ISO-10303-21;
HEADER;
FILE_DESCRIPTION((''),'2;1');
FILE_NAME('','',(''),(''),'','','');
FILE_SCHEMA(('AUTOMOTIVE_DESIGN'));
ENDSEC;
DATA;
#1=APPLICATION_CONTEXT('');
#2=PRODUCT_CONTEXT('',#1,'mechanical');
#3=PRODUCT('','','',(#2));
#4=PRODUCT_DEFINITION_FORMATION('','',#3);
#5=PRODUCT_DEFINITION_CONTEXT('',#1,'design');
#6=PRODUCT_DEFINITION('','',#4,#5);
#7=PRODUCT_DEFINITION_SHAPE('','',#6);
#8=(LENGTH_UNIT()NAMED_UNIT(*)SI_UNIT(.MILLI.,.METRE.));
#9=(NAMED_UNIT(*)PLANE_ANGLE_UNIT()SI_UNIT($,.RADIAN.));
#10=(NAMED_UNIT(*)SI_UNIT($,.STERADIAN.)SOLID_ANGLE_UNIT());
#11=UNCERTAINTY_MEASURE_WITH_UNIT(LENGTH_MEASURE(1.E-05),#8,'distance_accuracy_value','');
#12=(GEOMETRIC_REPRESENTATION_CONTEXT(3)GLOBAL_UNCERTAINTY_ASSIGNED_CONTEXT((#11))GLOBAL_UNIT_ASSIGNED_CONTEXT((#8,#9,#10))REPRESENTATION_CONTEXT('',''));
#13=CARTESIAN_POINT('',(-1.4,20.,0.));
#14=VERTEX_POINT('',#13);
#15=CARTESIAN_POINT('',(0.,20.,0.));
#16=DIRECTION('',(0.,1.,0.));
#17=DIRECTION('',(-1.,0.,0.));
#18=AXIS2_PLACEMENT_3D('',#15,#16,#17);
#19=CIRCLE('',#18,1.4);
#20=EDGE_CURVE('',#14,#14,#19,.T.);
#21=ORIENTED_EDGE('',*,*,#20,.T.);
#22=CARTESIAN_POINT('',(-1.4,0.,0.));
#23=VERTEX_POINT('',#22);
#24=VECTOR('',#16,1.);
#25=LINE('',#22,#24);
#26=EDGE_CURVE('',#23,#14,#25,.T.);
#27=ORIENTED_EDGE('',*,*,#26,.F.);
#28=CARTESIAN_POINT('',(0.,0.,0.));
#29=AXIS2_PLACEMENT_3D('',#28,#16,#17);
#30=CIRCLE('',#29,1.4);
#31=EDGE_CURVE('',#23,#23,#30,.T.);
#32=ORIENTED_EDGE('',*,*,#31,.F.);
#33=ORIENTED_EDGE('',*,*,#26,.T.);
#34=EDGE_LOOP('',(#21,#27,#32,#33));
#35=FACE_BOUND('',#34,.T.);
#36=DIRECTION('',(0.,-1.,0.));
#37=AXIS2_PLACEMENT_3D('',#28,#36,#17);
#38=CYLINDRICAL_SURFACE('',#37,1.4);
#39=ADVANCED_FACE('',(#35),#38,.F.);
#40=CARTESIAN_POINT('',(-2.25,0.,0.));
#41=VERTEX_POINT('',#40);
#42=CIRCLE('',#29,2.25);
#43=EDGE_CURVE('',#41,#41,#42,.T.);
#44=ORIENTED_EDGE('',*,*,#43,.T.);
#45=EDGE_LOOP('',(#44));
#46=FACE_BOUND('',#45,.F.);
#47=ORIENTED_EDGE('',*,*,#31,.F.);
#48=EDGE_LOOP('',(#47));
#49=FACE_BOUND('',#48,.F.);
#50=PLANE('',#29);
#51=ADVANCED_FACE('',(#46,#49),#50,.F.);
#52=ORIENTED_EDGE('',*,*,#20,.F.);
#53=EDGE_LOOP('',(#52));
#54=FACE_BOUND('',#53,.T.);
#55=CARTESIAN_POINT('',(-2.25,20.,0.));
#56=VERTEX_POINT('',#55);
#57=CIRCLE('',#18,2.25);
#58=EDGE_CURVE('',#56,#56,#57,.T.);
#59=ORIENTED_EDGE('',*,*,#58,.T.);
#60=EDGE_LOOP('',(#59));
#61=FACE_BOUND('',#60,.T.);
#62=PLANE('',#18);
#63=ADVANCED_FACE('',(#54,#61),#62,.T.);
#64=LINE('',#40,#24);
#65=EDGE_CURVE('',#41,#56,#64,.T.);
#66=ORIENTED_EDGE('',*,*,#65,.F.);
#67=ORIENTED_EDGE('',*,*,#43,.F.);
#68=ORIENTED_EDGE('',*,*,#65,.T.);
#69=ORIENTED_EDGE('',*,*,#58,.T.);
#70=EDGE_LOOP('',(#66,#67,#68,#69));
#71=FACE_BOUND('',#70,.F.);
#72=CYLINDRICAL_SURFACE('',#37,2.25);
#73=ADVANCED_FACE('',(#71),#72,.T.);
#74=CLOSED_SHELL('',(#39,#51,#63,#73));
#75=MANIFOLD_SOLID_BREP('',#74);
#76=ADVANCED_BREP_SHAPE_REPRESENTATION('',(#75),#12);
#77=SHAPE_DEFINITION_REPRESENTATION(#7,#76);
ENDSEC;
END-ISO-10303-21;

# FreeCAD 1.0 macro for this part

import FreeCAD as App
import Part
import Sketcher

V = App.Vector

doc = App.newDocument("Part")
body = doc.addObject("PartDesign::Body", "Body")

sketch1 = doc.addObject("Sketcher::SketchObject", "Sketch")
body.addObject(sketch1)
sketch1.AttachmentSupport = (doc.XZ_Plane, [""])
sketch1.MapMode = "FlatFace"
sketch1.addGeometry([
    Part.Circle(V(0, 0, 0), V(0, 0, 1), 2.2),
    Part.Circle(V(0, 0, 0), V(0, 0, 1), 1.4),
], False)
sketch1.addConstraint([
    Sketcher.Constraint("Coincident", 0, 3, -1, 1),
    Sketcher.Constraint("Coincident", 1, 3, -1, 1),
    Sketcher.Constraint("Diameter", 0, 4.5),
    Sketcher.Constraint("Diameter", 1, 2.8),
])
pad1 = doc.addObject("PartDesign::Pad", "Pad")
body.addObject(pad1)
pad1.Profile = sketch1
pad1.Length = 20
pad1.Reversed = True

doc.recompute()
